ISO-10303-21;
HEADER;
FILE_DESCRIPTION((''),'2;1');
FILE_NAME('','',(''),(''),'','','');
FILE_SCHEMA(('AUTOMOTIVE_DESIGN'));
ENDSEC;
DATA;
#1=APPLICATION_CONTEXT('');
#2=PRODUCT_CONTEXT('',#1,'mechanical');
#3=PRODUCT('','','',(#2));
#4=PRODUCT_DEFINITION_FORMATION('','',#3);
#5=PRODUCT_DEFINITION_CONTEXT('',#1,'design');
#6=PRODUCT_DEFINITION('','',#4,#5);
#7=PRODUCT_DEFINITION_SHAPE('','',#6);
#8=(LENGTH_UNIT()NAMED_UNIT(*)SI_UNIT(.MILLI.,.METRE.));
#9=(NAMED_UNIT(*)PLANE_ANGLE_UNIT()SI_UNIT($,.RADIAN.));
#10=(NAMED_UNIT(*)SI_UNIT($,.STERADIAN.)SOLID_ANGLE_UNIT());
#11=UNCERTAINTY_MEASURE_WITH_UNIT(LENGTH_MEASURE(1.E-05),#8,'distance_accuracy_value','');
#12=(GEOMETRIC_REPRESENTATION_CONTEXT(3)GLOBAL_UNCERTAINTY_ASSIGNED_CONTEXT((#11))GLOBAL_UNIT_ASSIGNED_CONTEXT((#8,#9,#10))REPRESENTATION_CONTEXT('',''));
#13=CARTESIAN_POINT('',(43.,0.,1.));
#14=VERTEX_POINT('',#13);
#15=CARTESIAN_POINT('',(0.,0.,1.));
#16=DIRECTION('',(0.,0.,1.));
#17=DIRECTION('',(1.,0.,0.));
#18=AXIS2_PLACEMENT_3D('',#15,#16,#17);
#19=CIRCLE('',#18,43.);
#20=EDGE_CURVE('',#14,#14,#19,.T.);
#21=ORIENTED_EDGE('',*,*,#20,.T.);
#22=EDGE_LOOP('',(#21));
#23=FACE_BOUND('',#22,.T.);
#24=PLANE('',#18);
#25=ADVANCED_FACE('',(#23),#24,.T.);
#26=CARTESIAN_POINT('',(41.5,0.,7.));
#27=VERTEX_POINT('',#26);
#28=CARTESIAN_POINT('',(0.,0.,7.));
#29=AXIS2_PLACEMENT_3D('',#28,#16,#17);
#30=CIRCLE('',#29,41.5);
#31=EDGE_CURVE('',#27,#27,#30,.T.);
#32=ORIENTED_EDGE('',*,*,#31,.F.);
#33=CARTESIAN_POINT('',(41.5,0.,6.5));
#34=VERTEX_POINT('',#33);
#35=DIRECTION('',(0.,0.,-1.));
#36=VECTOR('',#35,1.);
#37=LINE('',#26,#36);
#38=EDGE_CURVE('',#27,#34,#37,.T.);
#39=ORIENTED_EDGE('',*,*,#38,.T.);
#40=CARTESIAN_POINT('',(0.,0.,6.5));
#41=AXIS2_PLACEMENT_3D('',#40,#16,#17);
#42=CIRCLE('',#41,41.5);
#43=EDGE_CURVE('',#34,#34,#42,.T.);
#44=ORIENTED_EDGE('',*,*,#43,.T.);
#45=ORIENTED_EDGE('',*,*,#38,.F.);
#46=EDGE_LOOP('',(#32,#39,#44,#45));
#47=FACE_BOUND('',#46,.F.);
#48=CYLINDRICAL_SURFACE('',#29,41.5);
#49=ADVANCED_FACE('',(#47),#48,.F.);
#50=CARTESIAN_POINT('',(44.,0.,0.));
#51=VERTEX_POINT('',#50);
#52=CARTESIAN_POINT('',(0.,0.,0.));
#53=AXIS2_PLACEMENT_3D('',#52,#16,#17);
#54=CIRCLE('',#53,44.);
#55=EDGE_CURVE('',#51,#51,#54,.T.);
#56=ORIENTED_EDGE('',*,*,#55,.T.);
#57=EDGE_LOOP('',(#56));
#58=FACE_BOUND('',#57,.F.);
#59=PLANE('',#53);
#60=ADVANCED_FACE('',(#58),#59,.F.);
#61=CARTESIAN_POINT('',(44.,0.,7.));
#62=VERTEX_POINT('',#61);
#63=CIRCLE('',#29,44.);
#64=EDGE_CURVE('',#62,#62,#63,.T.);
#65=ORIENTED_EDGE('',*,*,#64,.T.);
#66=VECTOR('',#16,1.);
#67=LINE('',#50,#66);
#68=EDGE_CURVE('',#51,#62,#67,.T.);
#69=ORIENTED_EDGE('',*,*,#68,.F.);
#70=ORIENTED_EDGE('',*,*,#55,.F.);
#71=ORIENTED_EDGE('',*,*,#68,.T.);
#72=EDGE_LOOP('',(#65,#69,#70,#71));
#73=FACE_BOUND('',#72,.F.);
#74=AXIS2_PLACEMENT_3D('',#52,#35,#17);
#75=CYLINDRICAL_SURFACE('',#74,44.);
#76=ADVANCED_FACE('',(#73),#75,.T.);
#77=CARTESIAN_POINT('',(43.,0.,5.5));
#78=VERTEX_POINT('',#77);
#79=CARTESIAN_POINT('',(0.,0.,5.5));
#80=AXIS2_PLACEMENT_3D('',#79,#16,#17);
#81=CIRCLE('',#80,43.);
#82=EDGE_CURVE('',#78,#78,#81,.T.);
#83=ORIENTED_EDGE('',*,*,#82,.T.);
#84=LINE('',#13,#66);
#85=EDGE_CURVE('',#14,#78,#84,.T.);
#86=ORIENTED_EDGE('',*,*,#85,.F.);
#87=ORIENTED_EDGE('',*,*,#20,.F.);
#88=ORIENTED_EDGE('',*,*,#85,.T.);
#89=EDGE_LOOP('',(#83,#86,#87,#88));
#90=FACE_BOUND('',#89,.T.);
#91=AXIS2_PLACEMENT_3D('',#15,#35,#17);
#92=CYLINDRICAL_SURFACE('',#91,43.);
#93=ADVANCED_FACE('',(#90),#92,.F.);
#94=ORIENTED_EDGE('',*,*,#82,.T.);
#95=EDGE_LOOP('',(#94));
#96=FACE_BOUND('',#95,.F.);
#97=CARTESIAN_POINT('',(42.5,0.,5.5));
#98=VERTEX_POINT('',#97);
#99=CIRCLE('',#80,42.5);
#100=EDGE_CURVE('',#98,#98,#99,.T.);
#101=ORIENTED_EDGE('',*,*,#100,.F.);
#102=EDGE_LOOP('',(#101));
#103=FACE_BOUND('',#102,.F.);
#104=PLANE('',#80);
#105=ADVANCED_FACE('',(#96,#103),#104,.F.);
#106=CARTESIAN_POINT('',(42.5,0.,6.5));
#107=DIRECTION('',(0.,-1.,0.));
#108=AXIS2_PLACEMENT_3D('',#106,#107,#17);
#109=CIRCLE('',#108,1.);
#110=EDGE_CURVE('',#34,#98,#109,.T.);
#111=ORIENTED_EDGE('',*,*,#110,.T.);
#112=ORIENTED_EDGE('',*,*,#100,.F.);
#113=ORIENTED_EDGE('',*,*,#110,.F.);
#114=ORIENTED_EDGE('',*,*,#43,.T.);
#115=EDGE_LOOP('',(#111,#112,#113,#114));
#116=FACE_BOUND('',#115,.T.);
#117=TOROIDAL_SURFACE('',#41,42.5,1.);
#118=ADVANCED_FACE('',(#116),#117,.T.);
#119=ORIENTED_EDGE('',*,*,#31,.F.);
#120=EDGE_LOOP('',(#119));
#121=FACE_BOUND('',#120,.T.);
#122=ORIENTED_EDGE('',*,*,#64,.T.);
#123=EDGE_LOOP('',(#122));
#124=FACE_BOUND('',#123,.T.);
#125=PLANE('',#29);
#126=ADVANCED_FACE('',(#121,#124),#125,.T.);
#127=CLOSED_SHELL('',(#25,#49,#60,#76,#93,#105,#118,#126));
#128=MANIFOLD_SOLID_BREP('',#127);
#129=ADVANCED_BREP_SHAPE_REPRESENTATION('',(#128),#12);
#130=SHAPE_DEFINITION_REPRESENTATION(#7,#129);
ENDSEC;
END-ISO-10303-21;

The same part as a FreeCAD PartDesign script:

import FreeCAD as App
import Part
import Sketcher

V = App.Vector
Q = App.Units.Quantity


def edges_at(feature, points):
    """Names of the edges that pass closest to the given points."""
    edges = feature.Shape.Edges
    near = lambda p: min(range(len(edges)), key=lambda i: edges[i].distToShape(Part.Vertex(*p))[0])
    return sorted({f"Edge{near(p) + 1}" for p in points})

doc = App.newDocument("Part")
body = doc.addObject("PartDesign::Body", "Body")

# Sketch on XY plane
sketch1 = body.newObject("Sketcher::SketchObject", "Sketch")
sketch1.AttachmentSupport = (doc.getObject("XY_Plane"), [""])
sketch1.MapMode = "FlatFace"
sketch1.addGeometry(Part.Circle(V(0, 0, 0), V(0, 0, 1), 44), False)
sketch1.addConstraint(Sketcher.Constraint("Coincident", 0, 3, -1, 1))
sketch1.addConstraint(Sketcher.Constraint("Diameter", 0, Q("88 mm")))
pad1 = body.newObject("PartDesign::Pad", "Pad")
pad1.Profile = sketch1
pad1.Length = 7

# Sketch on XY plane
sketch2 = body.newObject("Sketcher::SketchObject", "Sketch001")
sketch2.AttachmentSupport = (doc.getObject("XY_Plane"), [""])
sketch2.MapMode = "FlatFace"
sketch2.AttachmentOffset = App.Placement(V(0, 0, 7), App.Rotation())
sketch2.addGeometry(Part.Circle(V(0, 0, 0), V(0, 0, 1), 42), False)
sketch2.addConstraint(Sketcher.Constraint("Coincident", 0, 3, -1, 1))
sketch2.addConstraint(Sketcher.Constraint("Diameter", 0, Q("83 mm")))
pocket1 = body.newObject("PartDesign::Pocket", "Pocket")
pocket1.Profile = sketch2
pocket1.Length = 6

# Sketch on XY plane
sketch3 = body.newObject("Sketcher::SketchObject", "Sketch002")
sketch3.AttachmentSupport = (doc.getObject("XY_Plane"), [""])
sketch3.MapMode = "FlatFace"
sketch3.AttachmentOffset = App.Placement(V(0, 0, 1), App.Rotation())
sketch3.addGeometry(Part.Circle(V(0, 0, 0), V(0, 0, 1), 43), False)
sketch3.addConstraint(Sketcher.Constraint("Coincident", 0, 3, -1, 1))
sketch3.addConstraint(Sketcher.Constraint("Diameter", 0, Q("86 mm")))
pocket2 = body.newObject("PartDesign::Pocket", "Pocket001")
pocket2.Profile = sketch3
pocket2.Length = 4.5
pocket2.Reversed = True
doc.recompute()

fillet = body.newObject("PartDesign::Fillet", "Fillet")
fillet.Base = (pocket2, edges_at(pocket2, [(-41.5, 0, 5.5)]))
fillet.Radius = 1

doc.recompute()
